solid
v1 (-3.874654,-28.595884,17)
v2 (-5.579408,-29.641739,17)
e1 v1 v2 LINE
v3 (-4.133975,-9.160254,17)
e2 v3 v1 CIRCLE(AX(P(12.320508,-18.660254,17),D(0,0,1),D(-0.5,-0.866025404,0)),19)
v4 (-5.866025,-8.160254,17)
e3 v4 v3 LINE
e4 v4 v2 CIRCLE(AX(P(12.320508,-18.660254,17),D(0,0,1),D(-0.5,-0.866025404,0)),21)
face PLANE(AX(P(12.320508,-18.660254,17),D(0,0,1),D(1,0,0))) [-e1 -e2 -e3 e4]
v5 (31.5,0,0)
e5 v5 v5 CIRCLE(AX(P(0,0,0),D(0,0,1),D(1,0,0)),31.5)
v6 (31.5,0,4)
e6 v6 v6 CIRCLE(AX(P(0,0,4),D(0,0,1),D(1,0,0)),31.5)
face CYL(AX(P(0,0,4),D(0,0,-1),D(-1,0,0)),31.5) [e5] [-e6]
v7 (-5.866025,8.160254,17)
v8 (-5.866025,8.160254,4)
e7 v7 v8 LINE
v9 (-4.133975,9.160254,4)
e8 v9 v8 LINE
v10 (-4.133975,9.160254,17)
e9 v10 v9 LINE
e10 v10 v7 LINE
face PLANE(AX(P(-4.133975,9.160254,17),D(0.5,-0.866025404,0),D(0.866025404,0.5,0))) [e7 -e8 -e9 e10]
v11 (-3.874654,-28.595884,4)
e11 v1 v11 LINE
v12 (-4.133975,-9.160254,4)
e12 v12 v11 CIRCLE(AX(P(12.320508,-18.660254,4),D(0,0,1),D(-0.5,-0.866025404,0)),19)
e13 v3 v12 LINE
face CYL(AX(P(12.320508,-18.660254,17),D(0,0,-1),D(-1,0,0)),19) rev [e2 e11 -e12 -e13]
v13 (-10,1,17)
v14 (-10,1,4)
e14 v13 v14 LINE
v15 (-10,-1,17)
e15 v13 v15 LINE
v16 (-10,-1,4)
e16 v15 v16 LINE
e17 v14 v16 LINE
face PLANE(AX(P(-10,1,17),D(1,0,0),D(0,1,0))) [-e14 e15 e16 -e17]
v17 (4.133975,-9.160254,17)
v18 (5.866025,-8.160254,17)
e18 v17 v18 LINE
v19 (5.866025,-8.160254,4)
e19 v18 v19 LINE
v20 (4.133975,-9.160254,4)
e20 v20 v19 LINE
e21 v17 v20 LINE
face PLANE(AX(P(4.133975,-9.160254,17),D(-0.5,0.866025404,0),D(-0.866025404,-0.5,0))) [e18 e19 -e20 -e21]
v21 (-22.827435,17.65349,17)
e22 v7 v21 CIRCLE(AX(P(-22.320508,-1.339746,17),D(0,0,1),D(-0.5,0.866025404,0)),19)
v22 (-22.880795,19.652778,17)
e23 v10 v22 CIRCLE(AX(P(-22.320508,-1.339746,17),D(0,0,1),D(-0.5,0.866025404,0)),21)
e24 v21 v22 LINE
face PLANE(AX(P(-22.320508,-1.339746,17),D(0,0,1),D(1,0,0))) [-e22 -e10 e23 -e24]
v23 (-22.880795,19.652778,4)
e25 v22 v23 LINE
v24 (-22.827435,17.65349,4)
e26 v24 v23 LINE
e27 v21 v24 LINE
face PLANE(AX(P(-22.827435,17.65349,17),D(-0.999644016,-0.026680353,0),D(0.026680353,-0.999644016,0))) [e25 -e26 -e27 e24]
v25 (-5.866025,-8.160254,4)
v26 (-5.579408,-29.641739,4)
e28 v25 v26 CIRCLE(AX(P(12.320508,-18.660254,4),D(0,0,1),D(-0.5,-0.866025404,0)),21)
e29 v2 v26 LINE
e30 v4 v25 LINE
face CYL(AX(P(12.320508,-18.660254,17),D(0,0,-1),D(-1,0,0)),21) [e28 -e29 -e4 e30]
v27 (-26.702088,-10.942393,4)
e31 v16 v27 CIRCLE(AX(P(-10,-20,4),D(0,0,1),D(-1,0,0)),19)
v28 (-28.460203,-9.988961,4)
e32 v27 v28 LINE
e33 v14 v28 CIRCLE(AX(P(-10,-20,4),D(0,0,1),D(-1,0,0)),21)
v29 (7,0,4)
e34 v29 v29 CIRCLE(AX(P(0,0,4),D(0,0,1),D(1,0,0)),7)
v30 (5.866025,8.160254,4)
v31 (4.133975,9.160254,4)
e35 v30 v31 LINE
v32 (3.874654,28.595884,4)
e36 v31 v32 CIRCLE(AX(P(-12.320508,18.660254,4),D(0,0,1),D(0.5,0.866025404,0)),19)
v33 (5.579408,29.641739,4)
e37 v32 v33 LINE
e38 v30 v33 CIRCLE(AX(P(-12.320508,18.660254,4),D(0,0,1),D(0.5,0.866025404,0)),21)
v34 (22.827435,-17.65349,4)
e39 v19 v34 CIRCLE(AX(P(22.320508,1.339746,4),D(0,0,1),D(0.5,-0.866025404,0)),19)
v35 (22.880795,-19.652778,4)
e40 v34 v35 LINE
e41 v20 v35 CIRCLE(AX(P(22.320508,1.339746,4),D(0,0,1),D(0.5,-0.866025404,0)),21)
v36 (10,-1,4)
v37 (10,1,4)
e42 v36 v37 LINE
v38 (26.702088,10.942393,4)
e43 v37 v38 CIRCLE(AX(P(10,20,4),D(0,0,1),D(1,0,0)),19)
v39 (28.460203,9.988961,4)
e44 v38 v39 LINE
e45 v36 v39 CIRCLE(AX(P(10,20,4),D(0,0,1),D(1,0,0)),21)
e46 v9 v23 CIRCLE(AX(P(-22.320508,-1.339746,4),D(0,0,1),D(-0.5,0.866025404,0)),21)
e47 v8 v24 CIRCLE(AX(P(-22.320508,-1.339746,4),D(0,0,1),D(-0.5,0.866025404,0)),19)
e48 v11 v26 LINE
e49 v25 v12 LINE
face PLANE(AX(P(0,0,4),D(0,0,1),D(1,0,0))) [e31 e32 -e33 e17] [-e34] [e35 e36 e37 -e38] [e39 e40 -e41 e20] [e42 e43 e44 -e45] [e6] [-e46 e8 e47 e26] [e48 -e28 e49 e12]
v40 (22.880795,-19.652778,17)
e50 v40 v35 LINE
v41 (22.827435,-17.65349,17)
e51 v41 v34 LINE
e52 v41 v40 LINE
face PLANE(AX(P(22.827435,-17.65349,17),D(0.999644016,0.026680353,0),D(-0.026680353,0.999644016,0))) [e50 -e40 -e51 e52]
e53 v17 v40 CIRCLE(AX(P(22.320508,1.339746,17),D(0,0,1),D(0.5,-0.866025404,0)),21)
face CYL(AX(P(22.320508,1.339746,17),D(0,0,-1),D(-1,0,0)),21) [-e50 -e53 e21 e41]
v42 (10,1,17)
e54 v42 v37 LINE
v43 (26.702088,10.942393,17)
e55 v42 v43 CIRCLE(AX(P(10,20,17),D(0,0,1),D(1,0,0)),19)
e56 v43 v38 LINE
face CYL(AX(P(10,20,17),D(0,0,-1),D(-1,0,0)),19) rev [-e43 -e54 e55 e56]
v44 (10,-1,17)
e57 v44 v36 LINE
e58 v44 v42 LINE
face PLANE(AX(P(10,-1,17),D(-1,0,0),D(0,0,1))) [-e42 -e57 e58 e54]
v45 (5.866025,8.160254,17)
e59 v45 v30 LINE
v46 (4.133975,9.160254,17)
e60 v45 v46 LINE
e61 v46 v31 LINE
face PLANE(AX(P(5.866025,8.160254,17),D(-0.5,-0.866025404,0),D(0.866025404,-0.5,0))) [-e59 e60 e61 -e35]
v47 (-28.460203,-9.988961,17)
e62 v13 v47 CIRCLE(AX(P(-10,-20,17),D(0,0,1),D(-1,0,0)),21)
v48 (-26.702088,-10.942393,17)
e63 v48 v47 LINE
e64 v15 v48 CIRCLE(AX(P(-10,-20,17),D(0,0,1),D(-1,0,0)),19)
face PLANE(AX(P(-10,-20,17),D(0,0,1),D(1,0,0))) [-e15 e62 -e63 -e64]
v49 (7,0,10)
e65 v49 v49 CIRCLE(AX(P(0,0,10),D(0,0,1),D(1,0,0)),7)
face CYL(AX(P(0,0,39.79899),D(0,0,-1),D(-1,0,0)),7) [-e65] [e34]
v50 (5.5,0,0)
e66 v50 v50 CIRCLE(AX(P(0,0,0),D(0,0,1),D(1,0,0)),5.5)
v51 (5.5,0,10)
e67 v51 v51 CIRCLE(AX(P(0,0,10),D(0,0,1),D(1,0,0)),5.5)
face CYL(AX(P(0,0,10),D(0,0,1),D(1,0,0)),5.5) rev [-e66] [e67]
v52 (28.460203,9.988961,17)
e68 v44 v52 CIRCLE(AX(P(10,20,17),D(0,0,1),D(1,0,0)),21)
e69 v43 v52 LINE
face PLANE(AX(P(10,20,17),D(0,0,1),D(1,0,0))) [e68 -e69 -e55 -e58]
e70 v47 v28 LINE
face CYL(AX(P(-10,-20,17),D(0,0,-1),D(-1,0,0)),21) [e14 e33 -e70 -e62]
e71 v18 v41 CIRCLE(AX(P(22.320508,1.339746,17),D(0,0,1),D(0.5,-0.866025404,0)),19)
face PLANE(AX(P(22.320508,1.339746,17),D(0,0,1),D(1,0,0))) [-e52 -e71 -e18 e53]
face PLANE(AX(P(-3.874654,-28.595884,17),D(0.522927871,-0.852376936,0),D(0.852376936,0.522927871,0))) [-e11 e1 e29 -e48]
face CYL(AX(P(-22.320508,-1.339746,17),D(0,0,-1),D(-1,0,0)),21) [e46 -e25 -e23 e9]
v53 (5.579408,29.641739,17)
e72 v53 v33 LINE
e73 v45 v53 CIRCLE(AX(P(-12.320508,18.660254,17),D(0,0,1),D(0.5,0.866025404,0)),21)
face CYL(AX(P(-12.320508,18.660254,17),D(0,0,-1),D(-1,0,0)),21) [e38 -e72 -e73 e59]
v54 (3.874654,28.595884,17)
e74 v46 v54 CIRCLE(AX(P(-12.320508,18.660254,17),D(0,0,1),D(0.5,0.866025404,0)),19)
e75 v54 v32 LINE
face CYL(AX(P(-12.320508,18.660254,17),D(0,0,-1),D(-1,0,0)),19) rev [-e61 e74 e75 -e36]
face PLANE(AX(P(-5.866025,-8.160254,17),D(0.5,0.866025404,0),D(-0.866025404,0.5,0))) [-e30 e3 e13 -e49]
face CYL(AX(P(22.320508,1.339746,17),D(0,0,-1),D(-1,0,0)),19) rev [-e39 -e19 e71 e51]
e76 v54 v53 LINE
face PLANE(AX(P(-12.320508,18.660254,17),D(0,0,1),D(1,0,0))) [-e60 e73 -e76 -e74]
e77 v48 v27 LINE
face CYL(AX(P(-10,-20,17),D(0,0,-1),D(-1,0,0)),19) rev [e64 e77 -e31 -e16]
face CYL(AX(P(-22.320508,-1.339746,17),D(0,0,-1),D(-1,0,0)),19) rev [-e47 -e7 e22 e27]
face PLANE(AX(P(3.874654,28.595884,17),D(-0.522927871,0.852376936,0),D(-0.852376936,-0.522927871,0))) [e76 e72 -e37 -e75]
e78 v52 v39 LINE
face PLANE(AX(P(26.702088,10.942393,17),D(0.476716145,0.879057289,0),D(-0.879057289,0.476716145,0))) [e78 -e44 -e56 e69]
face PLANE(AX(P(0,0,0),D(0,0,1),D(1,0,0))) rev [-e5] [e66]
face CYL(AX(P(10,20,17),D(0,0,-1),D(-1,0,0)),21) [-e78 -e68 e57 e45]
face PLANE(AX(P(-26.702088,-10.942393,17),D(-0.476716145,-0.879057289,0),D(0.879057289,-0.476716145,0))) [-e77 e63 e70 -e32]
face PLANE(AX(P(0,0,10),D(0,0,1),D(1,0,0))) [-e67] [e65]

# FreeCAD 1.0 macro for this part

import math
import FreeCAD as App
import Part
import Sketcher
from FreeCAD import Vector

doc = App.newDocument("Part")
params = doc.addObject("Spreadsheet::Sheet", "Params")
for row, (alias, value) in enumerate([
    ("sketch1_diameter", "63 mm"),
    ("pad1_length", "4 mm"),
    ("sketch2_radius", "21 mm"),
    ("sketch2_radius2", "19 mm"),
    ("pad2_length", "13 mm"),
    ("sketch3_diameter", "14 mm"),
    ("pad3_length", "6 mm"),
    ("sketch4_diameter", "11 mm"),
    ("hole_diameter", "11 mm"),
    ("hole_depth", "10 mm"),
], start=1):
    params.set(f"A{row}", alias)
    params.set(f"B{row}", "=" + value)
    params.setAlias(f"B{row}", alias)

body = doc.addObject("PartDesign::Body", "Body")

sketch1 = body.newObject("Sketcher::SketchObject", "Sketch")
sketch1.AttachmentSupport = (doc.getObject("XY_Plane"), [""])
sketch1.MapMode = "FlatFace"
sketch1.addGeometry(Part.Circle(Vector(0, 0, 0), Vector(0, 0, 1), 32), False)
sketch1.addConstraint([
    Sketcher.Constraint("Coincident", 0, 3, -1, 1),
    Sketcher.Constraint("Diameter", 0, 63.0),
])
sketch1.setExpression("Constraints[1]", "Params.sketch1_diameter")
pad1 = body.newObject("PartDesign::Pad", "Pad")
pad1.Profile = sketch1
pad1.setExpression("Length", "Params.pad1_length")

sketch2 = body.newObject("Sketcher::SketchObject", "Sketch001")
sketch2.AttachmentSupport = (doc.getObject("XY_Plane"), [""])
sketch2.MapMode = "FlatFace"
sketch2.AttachmentOffset = App.Placement(Vector(0, 0, 4), App.Rotation())
sketch2.addGeometry([
    Part.ArcOfCircle(Part.Circle(Vector(10, 20, 0), Vector(0, 0, 1), 21), math.radians(-90), math.radians(-28)),
    Part.LineSegment(Vector(28.5, 10, 0), Vector(26.7, 10.9, 0)),
    Part.ArcOfCircle(Part.Circle(Vector(10, 20, 0), Vector(0, 0, 1), 19), math.radians(-90), math.radians(-28)),
    Part.LineSegment(Vector(10, 1, 0), Vector(10, -1, 0)),
], False)
sketch2.addConstraint([
    Sketcher.Constraint("Coincident", 0, 2, 1, 1),
    Sketcher.Constraint("Coincident", 1, 2, 2, 2),
    Sketcher.Constraint("Coincident", 2, 1, 3, 1),
    Sketcher.Constraint("Coincident", 3, 2, 0, 1),
    Sketcher.Constraint("Vertical", 3),
    Sketcher.Constraint("Coincident", 2, 3, 0, 3),
    Sketcher.Constraint("Vertical", 0, 3, 2, 1),
    Sketcher.Constraint("Radius", 0, 21.0),
    Sketcher.Constraint("Radius", 2, 19.0),
    Sketcher.Constraint("DistanceX", -1, 1, 0, 3, 10.0),
    Sketcher.Constraint("DistanceY", -1, 1, 0, 3, 20.0),
    Sketcher.Constraint("DistanceY", -1, 1, 0, 2, 9.988961),
    Sketcher.Constraint("DistanceX", -1, 1, 1, 2, 26.702088),
])
sketch2.setExpression("Constraints[7]", "Params.sketch2_radius")
sketch2.setExpression("Constraints[8]", "Params.sketch2_radius2")
pad2 = body.newObject("PartDesign::Pad", "Pad001")
pad2.Profile = sketch2
pad2.setExpression("Length", "Params.pad2_length")
doc.recompute()

polarpattern = body.newObject("PartDesign::PolarPattern", "PolarPattern")
polarpattern.Originals = [pad2]
polarpattern.Axis = (doc.getObject("Z_Axis"), [""])
polarpattern.Angle = 360
polarpattern.Occurrences = 6
body.Tip = polarpattern

sketch3 = body.newObject("Sketcher::SketchObject", "Sketch002")
sketch3.AttachmentSupport = (doc.getObject("XY_Plane"), [""])
sketch3.MapMode = "FlatFace"
sketch3.AttachmentOffset = App.Placement(Vector(0, 0, 4), App.Rotation())
sketch3.addGeometry(Part.Circle(Vector(0, 0, 0), Vector(0, 0, 1), 7), False)
sketch3.addConstraint([
    Sketcher.Constraint("Coincident", 0, 3, -1, 1),
    Sketcher.Constraint("Diameter", 0, 14.0),
])
sketch3.setExpression("Constraints[1]", "Params.sketch3_diameter")
pad3 = body.newObject("PartDesign::Pad", "Pad002")
pad3.Profile = sketch3
pad3.setExpression("Length", "Params.pad3_length")

sketch4 = body.newObject("Sketcher::SketchObject", "Sketch003")
sketch4.AttachmentSupport = (doc.getObject("XY_Plane"), [""])
sketch4.MapMode = "FlatFace"
sketch4.AttachmentOffset = App.Placement(Vector(0, 0, 10), App.Rotation())
sketch4.addGeometry(Part.Circle(Vector(0, 0, 0), Vector(0, 0, 1), 6), False)
sketch4.addConstraint([
    Sketcher.Constraint("Coincident", 0, 3, -1, 1),
    Sketcher.Constraint("Diameter", 0, 11.0),
])
sketch4.setExpression("Constraints[1]", "Params.sketch4_diameter")
doc.recompute()
hole = body.newObject("PartDesign::Hole", "Hole")
hole.Profile = sketch4
hole.ThreadType = "None"
hole.setExpression("Diameter", "Params.hole_diameter")
hole.DepthType = "Dimension"
hole.setExpression("Depth", "Params.hole_depth")
hole.DrillPoint = "Angled"
hole.DrillPointAngle = 118

doc.recompute()
